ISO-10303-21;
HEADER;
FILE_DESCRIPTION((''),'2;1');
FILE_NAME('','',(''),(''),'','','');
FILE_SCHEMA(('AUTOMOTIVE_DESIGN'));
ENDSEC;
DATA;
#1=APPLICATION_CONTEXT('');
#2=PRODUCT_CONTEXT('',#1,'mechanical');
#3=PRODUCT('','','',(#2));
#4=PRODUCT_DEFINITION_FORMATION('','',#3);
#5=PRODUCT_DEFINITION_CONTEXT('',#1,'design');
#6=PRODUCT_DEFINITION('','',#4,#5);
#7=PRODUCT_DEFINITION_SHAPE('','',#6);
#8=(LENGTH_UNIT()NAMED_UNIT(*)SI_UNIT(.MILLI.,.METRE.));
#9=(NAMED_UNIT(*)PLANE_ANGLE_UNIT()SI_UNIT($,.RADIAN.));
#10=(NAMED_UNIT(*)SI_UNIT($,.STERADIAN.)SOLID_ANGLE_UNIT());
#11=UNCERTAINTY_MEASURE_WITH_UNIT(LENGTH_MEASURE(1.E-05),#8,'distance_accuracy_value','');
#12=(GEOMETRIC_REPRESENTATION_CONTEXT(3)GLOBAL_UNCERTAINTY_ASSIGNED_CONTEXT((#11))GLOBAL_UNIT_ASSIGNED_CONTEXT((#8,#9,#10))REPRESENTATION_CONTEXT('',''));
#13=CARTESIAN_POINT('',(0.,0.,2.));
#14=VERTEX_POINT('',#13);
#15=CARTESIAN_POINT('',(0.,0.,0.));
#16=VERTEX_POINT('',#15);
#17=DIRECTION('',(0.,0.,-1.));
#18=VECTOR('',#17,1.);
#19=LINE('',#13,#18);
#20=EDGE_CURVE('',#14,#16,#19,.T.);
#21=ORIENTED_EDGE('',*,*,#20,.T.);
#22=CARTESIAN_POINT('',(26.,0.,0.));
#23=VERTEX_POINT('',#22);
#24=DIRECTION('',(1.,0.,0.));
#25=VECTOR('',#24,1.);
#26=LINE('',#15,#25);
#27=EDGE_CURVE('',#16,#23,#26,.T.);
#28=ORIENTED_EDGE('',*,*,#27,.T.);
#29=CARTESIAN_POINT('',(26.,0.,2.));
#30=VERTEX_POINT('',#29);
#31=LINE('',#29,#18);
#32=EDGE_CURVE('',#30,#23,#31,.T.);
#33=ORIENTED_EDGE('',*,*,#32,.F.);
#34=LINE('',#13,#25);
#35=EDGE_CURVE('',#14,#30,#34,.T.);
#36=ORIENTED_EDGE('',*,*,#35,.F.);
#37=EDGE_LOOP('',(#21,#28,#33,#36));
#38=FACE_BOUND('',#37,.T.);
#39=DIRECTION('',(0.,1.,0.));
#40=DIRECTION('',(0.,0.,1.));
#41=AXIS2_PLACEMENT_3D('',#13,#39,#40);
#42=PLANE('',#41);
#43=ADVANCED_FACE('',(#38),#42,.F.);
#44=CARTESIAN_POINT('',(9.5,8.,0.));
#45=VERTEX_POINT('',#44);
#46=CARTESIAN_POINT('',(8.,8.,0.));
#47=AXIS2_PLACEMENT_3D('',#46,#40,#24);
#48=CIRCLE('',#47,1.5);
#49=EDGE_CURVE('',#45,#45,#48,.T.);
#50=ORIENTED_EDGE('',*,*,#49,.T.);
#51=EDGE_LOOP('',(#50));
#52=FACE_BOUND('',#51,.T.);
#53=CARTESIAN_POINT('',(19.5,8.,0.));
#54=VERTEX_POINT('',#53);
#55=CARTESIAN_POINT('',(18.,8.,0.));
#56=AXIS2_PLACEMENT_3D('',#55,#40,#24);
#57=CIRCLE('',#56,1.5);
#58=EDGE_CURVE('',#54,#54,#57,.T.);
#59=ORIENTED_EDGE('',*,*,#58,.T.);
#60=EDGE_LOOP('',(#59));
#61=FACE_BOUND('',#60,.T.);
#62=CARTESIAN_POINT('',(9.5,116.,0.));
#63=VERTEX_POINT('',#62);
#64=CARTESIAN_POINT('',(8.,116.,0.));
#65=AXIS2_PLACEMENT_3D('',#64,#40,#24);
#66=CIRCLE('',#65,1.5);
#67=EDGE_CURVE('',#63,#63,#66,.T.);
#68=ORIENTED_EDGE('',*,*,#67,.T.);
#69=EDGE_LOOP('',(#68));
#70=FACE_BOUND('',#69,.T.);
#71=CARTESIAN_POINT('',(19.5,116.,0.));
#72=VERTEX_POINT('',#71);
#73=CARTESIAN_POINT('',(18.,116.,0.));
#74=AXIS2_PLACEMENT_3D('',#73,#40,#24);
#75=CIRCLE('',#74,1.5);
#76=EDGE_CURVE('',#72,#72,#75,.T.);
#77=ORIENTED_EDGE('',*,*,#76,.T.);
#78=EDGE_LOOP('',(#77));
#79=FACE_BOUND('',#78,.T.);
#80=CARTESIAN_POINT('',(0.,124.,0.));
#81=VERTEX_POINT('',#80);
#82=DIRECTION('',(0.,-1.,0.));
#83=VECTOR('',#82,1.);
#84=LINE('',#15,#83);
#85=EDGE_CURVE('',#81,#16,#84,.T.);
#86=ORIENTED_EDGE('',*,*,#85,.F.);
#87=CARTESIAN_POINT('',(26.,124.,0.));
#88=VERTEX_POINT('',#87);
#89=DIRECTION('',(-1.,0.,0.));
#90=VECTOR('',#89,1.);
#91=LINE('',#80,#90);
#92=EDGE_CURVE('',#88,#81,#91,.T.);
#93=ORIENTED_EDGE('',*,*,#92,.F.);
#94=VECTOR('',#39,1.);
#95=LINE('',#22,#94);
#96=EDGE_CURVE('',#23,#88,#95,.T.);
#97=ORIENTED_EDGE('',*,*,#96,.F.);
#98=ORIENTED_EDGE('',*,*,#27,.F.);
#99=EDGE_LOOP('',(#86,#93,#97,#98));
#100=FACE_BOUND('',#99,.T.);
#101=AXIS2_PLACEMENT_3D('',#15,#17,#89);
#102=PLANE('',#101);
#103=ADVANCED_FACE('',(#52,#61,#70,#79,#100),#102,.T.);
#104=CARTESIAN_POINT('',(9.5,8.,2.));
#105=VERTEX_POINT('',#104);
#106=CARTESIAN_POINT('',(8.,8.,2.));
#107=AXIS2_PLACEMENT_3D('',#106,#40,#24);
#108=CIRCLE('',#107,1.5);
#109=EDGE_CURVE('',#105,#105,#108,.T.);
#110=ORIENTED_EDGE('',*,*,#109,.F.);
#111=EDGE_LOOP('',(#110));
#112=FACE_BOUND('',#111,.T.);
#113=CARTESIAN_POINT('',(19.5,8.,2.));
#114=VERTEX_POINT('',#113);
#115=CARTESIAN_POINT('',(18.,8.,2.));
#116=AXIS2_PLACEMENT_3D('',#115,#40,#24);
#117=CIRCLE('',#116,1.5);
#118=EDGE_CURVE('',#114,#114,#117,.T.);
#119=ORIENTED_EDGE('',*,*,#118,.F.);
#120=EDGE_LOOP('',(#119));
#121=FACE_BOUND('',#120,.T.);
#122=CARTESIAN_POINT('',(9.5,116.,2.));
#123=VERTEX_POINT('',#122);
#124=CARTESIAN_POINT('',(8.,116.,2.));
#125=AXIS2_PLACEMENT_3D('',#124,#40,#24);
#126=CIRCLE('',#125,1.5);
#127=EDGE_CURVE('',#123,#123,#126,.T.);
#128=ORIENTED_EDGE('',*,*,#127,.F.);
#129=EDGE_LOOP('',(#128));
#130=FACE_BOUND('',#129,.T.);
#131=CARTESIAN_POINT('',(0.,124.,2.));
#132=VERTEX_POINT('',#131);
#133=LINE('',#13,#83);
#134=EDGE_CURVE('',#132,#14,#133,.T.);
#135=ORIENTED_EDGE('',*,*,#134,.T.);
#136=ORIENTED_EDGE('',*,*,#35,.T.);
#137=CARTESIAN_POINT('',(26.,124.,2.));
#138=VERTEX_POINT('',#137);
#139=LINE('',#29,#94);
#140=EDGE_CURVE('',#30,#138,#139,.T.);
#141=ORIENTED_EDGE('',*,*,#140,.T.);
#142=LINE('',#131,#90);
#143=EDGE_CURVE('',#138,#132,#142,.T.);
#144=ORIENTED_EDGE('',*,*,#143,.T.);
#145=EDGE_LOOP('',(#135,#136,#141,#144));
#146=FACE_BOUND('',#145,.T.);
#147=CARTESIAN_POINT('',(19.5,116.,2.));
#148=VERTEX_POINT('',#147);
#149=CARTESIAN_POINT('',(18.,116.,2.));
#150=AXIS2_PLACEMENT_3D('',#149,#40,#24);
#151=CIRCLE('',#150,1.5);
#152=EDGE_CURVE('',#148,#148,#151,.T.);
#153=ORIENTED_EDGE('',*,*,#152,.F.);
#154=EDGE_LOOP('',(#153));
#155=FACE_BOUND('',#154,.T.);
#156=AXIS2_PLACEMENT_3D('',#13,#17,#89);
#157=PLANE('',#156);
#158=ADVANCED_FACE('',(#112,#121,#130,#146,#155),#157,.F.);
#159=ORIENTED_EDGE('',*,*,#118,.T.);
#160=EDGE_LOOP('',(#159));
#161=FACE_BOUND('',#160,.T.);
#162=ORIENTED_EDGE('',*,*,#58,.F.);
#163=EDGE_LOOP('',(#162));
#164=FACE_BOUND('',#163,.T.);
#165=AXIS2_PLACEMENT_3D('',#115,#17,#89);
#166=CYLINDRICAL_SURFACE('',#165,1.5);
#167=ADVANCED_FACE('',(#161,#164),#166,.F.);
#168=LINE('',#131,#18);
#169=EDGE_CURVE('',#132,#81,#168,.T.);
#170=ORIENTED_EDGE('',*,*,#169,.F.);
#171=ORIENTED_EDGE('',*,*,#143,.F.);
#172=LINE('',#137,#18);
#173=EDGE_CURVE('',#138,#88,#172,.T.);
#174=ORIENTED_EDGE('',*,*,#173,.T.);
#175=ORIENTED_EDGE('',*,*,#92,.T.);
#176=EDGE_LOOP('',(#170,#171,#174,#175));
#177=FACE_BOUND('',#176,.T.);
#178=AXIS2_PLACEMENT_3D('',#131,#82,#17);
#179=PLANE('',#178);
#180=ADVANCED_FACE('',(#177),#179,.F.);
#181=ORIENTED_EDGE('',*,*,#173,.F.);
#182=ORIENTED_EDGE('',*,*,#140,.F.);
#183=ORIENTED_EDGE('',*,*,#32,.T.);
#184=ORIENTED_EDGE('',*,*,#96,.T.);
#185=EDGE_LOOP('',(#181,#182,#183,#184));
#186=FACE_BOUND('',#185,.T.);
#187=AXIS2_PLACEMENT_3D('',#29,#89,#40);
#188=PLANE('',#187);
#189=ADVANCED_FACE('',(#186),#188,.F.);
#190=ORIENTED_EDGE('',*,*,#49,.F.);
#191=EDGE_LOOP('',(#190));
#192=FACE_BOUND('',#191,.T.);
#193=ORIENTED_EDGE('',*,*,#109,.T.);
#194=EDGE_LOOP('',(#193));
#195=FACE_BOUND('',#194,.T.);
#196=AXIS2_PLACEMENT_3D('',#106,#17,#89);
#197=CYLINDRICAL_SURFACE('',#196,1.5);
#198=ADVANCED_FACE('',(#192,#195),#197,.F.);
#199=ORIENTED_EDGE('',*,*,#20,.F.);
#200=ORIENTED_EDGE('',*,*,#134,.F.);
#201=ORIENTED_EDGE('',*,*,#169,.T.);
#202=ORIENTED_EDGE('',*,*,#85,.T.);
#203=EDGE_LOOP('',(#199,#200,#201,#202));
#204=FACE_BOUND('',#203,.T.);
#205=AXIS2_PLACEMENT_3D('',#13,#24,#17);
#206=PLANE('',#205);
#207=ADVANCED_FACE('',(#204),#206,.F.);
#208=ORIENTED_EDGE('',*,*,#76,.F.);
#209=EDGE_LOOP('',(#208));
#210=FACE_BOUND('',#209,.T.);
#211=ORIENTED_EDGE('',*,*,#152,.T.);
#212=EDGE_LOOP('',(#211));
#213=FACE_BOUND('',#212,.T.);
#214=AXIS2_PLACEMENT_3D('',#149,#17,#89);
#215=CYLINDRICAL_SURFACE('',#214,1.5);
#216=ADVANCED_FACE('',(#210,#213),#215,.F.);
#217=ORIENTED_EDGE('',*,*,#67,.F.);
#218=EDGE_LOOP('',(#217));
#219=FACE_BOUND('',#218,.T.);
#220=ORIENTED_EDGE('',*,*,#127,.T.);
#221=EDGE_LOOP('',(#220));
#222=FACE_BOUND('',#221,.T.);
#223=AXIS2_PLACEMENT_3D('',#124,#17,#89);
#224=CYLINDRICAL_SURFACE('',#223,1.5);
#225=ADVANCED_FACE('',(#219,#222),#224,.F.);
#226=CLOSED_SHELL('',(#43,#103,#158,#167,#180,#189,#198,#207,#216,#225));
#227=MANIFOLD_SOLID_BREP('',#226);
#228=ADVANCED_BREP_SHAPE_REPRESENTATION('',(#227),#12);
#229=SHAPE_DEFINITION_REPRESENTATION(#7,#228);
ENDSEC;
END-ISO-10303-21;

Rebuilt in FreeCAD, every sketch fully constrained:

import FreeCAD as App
import Part
import Sketcher

V = App.Vector


def add_polygon(sketch, points):
    """Adds a closed chain of lines whose ends are joined by coincident constraints."""
    first, n = sketch.GeometryCount, len(points)
    for a, b in zip(points, points[1:] + points[:1]):
        sketch.addGeometry(Part.LineSegment(App.Vector(*a, 0), App.Vector(*b, 0)), False)
    for i in range(n):
        sketch.addConstraint(Sketcher.Constraint("Coincident", first + i, 2, first + (i + 1) % n, 1))

doc = App.newDocument("Part")
params = doc.addObject("Spreadsheet::Sheet", "Params")
for row, (alias, value) in enumerate([
    ("sketch1_diameter", "3 mm"),
    ("sketch1_width", "26 mm"),
    ("sketch1_height", "124 mm"),
    ("pad1_length", "2 mm"),
], start=1):
    params.set(f"A{row}", alias)
    params.set(f"B{row}", "=" + value)
    params.setAlias(f"B{row}", alias)

body = doc.addObject("PartDesign::Body", "Body")

# Sketch on XY plane
sketch1 = body.newObject("Sketcher::SketchObject", "Sketch")
sketch1.AttachmentSupport = (doc.getObject("XY_Plane"), [""])
sketch1.MapMode = "FlatFace"
add_polygon(sketch1, [(0, 124), (0, 0), (26, 0), (26, 124)])  # lines 0-3
sketch1.addGeometry(Part.Circle(V(8, 8, 0), V(0, 0, 1), 1.5), False)  # 4
sketch1.addGeometry(Part.Circle(V(18, 8, 0), V(0, 0, 1), 1.5), False)  # 5
sketch1.addGeometry(Part.Circle(V(8, 116, 0), V(0, 0, 1), 1.5), False)  # 6
sketch1.addGeometry(Part.Circle(V(18, 116, 0), V(0, 0, 1), 1.5), False)  # 7
sketch1.addConstraint([
    Sketcher.Constraint("Vertical", 0),
    Sketcher.Constraint("Horizontal", 1),
    Sketcher.Constraint("Vertical", 2),
    Sketcher.Constraint("Horizontal", 3),
    Sketcher.Constraint("Coincident", 0, 2, -1, 1),
    Sketcher.Constraint("Equal", 4, 5),
    Sketcher.Constraint("Equal", 5, 6),
    Sketcher.Constraint("Equal", 6, 7),
    Sketcher.Constraint("Horizontal", 4, 3, 5, 3),
    Sketcher.Constraint("Horizontal", 6, 3, 7, 3),
    Sketcher.Constraint("Vertical", 4, 3, 6, 3),
    Sketcher.Constraint("Vertical", 5, 3, 7, 3),
    Sketcher.Constraint("Diameter", 4, 3.0),
    Sketcher.Constraint("DistanceX", 1, 1, 1, 2, 26.0),
    Sketcher.Constraint("DistanceY", 0, 2, 0, 1, 124.0),
    Sketcher.Constraint("DistanceX", -1, 1, 4, 3, 8.0),
    Sketcher.Constraint("DistanceY", -1, 1, 4, 3, 8.0),
    Sketcher.Constraint("DistanceX", -1, 1, 5, 3, 18.0),
    Sketcher.Constraint("DistanceY", -1, 1, 6, 3, 116.0),
])
sketch1.setExpression("Constraints[16]", "Params.sketch1_diameter")
sketch1.setExpression("Constraints[17]", "Params.sketch1_width")
sketch1.setExpression("Constraints[18]", "Params.sketch1_height")
pad1 = body.newObject("PartDesign::Pad", "Pad")
pad1.Profile = sketch1
pad1.setExpression("Length", "Params.pad1_length")

doc.recompute()
